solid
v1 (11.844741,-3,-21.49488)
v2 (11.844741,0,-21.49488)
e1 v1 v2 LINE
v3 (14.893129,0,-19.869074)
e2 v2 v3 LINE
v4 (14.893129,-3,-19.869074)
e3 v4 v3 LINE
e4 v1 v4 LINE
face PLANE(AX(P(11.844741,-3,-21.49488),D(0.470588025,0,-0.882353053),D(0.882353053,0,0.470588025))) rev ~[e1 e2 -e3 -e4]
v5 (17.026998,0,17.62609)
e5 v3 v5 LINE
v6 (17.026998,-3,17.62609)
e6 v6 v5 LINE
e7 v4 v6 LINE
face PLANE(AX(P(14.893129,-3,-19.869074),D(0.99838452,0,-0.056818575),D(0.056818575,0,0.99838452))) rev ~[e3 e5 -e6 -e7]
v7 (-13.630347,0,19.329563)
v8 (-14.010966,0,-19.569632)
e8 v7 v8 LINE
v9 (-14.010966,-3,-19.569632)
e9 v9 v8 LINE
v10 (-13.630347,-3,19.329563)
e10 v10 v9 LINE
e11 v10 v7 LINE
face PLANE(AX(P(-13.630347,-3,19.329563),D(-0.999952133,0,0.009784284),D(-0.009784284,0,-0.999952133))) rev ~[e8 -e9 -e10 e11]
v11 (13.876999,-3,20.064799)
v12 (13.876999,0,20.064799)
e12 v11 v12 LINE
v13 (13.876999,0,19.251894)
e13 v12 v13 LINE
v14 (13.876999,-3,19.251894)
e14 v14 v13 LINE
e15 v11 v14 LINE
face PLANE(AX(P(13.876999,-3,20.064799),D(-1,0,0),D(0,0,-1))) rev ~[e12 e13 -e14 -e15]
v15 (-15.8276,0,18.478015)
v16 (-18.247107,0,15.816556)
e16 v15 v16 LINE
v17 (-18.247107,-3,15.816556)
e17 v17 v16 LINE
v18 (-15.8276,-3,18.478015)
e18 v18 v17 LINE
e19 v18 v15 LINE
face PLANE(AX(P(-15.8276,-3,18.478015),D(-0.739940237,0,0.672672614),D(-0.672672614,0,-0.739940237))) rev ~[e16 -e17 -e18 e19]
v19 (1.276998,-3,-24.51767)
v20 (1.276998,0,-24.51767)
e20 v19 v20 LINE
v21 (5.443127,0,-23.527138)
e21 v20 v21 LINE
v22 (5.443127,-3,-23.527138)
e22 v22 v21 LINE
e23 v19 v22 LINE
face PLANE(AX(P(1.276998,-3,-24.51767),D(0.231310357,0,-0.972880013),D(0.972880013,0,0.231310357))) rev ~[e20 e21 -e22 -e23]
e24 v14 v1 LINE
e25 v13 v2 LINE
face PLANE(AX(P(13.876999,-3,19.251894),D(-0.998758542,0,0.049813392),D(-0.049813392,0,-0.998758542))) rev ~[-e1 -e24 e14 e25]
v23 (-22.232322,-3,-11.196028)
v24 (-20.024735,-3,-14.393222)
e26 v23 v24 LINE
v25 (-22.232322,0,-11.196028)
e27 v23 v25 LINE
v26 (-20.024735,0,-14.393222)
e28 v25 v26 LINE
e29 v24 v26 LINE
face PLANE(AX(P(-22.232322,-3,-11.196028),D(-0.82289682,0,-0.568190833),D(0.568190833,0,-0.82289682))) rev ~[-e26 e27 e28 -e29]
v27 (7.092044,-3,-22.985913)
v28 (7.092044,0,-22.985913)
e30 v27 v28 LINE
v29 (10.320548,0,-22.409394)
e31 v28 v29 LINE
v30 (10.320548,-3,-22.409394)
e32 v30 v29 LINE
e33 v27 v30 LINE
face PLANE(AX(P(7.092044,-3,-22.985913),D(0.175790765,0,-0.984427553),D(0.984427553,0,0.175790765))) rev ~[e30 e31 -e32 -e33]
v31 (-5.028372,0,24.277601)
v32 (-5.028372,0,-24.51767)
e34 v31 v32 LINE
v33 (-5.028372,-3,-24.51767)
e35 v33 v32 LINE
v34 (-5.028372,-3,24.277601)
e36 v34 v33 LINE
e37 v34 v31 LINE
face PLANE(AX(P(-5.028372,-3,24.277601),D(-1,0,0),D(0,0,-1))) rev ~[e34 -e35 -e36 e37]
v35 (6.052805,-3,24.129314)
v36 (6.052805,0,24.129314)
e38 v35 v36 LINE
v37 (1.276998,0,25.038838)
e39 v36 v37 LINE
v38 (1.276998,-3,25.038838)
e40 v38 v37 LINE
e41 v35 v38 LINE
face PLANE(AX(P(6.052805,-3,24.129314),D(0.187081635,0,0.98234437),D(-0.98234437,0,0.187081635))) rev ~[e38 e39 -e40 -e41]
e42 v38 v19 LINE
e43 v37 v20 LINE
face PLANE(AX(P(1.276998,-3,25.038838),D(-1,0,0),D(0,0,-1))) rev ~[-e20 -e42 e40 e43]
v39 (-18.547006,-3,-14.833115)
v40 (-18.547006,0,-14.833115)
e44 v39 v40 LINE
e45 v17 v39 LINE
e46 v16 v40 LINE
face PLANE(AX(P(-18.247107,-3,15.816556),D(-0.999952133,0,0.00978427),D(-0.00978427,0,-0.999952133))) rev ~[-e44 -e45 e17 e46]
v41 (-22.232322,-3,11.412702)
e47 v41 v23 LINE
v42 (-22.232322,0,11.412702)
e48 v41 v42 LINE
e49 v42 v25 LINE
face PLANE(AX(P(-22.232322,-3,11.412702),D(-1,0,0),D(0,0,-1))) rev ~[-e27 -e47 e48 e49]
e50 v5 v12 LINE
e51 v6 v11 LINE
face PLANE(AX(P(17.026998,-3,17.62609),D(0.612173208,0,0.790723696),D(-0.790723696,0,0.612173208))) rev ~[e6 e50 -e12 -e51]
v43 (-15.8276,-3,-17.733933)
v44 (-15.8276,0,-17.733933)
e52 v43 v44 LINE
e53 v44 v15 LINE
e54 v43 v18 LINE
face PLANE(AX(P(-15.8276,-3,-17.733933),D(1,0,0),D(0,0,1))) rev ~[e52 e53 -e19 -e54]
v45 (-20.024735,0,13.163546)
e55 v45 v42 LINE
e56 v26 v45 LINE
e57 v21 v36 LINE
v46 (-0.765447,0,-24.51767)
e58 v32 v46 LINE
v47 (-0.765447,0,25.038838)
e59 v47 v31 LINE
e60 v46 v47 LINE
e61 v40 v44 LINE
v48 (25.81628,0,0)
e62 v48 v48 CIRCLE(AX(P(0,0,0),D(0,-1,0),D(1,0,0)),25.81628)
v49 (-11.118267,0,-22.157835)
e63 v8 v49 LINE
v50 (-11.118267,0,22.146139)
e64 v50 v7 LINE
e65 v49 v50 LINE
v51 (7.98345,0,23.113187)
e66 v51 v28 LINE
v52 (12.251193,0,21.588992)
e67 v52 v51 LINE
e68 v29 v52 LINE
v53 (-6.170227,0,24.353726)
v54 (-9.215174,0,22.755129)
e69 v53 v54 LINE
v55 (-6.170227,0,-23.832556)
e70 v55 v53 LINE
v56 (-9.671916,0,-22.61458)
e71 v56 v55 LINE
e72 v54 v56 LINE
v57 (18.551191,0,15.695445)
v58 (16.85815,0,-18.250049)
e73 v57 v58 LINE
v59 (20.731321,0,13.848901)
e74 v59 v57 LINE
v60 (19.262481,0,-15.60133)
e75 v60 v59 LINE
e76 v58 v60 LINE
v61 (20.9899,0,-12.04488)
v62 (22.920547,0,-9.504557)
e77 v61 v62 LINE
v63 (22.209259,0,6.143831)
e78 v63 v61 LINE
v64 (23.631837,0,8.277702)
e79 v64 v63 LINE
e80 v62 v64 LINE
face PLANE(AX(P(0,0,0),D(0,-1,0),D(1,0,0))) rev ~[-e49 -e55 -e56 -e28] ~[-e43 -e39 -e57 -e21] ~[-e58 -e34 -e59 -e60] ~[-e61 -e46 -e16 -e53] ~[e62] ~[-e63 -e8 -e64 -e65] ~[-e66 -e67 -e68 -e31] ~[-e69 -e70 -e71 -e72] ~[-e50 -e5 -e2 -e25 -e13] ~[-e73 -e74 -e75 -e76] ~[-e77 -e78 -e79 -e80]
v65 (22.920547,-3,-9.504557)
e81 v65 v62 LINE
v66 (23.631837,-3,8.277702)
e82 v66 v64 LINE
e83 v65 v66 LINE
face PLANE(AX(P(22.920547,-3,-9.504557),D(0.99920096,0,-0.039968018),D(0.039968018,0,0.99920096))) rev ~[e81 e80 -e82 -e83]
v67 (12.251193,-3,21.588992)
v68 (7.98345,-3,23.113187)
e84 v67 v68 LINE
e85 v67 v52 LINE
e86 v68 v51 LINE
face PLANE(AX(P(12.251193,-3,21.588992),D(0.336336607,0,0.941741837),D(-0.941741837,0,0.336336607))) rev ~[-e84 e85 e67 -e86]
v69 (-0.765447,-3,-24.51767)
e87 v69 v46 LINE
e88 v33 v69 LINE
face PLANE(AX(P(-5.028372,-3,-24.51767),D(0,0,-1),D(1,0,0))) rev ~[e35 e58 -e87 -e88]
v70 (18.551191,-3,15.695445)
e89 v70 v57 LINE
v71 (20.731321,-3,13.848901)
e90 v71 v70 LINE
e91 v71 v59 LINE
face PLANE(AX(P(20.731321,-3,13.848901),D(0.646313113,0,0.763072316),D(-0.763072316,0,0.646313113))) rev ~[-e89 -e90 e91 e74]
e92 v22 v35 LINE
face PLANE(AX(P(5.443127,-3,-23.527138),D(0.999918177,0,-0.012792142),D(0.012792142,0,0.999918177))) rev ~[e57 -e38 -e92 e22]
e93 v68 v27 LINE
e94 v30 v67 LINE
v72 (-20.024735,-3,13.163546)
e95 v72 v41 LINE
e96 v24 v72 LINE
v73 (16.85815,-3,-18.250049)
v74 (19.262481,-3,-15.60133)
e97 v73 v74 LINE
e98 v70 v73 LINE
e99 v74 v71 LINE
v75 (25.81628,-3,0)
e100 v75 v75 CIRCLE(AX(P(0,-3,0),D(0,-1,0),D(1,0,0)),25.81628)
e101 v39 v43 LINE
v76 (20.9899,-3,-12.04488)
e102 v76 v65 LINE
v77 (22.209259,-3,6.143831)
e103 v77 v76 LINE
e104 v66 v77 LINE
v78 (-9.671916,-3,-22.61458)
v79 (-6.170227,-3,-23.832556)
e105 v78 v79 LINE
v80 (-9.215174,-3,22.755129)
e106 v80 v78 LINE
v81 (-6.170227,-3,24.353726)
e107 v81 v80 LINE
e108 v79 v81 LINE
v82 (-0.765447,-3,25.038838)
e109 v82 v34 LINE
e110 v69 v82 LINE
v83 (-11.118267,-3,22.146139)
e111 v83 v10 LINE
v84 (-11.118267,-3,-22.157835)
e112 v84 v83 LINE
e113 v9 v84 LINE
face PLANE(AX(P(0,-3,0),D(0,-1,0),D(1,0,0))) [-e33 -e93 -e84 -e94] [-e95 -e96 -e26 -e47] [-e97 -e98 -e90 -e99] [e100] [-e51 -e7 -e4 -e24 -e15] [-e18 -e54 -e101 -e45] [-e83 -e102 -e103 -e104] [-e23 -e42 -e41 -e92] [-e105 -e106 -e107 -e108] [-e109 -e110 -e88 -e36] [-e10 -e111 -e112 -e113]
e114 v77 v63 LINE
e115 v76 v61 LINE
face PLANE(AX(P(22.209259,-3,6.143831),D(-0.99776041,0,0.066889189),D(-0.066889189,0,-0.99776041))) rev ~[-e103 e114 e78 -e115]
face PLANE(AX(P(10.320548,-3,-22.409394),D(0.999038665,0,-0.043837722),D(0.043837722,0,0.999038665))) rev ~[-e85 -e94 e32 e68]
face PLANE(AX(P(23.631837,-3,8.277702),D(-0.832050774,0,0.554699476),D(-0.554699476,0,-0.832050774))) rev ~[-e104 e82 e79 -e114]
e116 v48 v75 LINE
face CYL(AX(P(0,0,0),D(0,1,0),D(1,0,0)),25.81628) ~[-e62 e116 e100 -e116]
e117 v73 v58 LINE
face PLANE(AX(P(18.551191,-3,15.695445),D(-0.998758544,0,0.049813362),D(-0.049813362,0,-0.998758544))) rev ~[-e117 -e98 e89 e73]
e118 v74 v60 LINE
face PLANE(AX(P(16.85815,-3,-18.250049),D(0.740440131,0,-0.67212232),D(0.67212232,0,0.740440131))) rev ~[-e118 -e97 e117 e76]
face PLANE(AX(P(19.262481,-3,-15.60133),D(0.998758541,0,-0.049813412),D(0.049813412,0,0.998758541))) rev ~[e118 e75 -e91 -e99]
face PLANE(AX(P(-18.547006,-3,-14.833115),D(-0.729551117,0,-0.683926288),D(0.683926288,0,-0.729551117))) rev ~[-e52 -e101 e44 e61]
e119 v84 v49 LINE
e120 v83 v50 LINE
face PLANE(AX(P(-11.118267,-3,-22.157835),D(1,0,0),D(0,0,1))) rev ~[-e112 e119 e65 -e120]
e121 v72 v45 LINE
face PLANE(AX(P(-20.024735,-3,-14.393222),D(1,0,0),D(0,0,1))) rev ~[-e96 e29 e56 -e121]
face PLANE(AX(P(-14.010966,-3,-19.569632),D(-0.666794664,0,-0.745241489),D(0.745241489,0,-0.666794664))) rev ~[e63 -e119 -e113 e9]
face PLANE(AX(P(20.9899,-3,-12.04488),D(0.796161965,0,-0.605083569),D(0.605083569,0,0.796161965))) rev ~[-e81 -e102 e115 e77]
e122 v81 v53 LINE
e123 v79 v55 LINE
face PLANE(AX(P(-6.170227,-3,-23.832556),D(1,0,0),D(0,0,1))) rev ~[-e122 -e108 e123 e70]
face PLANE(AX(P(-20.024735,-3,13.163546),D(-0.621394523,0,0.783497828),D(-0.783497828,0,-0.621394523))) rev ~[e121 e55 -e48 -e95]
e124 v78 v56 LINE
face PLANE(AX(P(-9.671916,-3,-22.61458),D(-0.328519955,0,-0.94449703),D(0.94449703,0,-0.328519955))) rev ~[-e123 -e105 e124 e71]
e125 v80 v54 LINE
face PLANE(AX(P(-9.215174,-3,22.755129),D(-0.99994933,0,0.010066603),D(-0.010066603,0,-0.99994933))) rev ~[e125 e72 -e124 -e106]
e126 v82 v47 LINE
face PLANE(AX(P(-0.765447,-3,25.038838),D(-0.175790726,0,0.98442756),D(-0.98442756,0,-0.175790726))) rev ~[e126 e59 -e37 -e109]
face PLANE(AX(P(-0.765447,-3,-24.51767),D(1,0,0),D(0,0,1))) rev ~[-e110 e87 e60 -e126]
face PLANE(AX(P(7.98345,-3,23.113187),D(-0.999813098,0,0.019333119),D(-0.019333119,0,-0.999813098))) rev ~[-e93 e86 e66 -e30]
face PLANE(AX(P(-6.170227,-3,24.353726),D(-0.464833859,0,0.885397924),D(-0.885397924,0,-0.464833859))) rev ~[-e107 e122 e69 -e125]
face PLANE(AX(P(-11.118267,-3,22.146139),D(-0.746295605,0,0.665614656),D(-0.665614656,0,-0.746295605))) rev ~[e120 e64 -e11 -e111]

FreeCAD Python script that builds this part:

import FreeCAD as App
import Part
import Sketcher
from FreeCAD import Vector
Q = App.Units.Quantity

doc = App.newDocument("Part")
params = doc.addObject("Spreadsheet::Sheet", "Params")
for row, (alias, value) in enumerate([
    ("pad1_length", "3 mm"),
    ("pocket1_length", "25 mm"),
    ("pocket2_length", "25 mm"),
], start=1):
    params.set(f"A{row}", alias)
    params.set(f"B{row}", "=" + value)
    params.setAlias(f"B{row}", alias)

body = doc.addObject("PartDesign::Body", "Body")

# Sketch on XZ plane
sketch1 = body.newObject("Sketcher::SketchObject", "Sketch")
sketch1.AttachmentSupport = (doc.getObject("XZ_Plane"), [""])
sketch1.MapMode = "FlatFace"
sketch1.addGeometry(Part.Circle(Vector(0, 0, 0), Vector(0, 0, 1), 25.81628), False)
sketch1.addConstraint([
    Sketcher.Constraint("Coincident", 0, 3, -1, 1),
    Sketcher.Constraint("Diameter", 0, 51.63256),
])
pad1 = body.newObject("PartDesign::Pad", "Pad")
pad1.Profile = sketch1
pad1.setExpression("Length", "Params.pad1_length")

# Sketch on XZ plane
sketch2 = body.newObject("Sketcher::SketchObject", "Sketch001")
sketch2.AttachmentSupport = (doc.getObject("XZ_Plane"), [""])
sketch2.MapMode = "FlatFace"
sketch2.AttachmentOffset = App.Placement(Vector(0, 0, 3), App.Rotation())
sketch2.addGeometry([
    Part.LineSegment(Vector(-22.232322, 11.412702, 0), Vector(-22.232322, -11.196028, 0)),  # 0
    Part.LineSegment(Vector(-22.232322, -11.196028, 0), Vector(-20.024735, -14.393222, 0)),  # 1
    Part.LineSegment(Vector(-20.024735, -14.393222, 0), Vector(-20.024735, 13.163546, 0)),  # 2
    Part.LineSegment(Vector(-20.024735, 13.163546, 0), Vector(-22.232322, 11.412702, 0)),  # 3
    Part.LineSegment(Vector(-11.118267, 22.146139, 0), Vector(-13.630347, 19.329563, 0)),  # 4
    Part.LineSegment(Vector(-13.630347, 19.329563, 0), Vector(-14.010966, -19.569632, 0)),  # 5
    Part.LineSegment(Vector(-14.010966, -19.569632, 0), Vector(-11.118267, -22.157835, 0)),  # 6
    Part.LineSegment(Vector(-11.118267, -22.157835, 0), Vector(-11.118267, 22.146139, 0)),  # 7
    Part.LineSegment(Vector(-6.170227, 24.353726, 0), Vector(-9.215174, 22.755129, 0)),  # 8
    Part.LineSegment(Vector(-9.215174, 22.755129, 0), Vector(-9.671916, -22.61458, 0)),  # 9
    Part.LineSegment(Vector(-9.671916, -22.61458, 0), Vector(-6.170227, -23.832556, 0)),  # 10
    Part.LineSegment(Vector(-6.170227, -23.832556, 0), Vector(-6.170227, 24.353726, 0)),  # 11
    Part.LineSegment(Vector(-0.765447, -24.51767, 0), Vector(-0.765447, 25.038838, 0)),  # 12
    Part.LineSegment(Vector(-0.765447, 25.038838, 0), Vector(-5.028372, 24.277601, 0)),  # 13
    Part.LineSegment(Vector(-5.028372, 24.277601, 0), Vector(-5.028372, -24.51767, 0)),  # 14
    Part.LineSegment(Vector(-5.028372, -24.51767, 0), Vector(-0.765447, -24.51767, 0)),  # 15
    Part.LineSegment(Vector(5.443127, -23.527138, 0), Vector(6.052805, 24.129314, 0)),  # 16
    Part.LineSegment(Vector(6.052805, 24.129314, 0), Vector(1.276998, 25.038838, 0)),  # 17
    Part.LineSegment(Vector(1.276998, 25.038838, 0), Vector(1.276998, -24.51767, 0)),  # 18
    Part.LineSegment(Vector(1.276998, -24.51767, 0), Vector(5.443127, -23.527138, 0)),  # 19
    Part.LineSegment(Vector(12.251193, 21.588992, 0), Vector(7.98345, 23.113187, 0)),  # 20
    Part.LineSegment(Vector(7.98345, 23.113187, 0), Vector(7.092044, -22.985913, 0)),  # 21
    Part.LineSegment(Vector(7.092044, -22.985913, 0), Vector(10.320548, -22.409394, 0)),  # 22
    Part.LineSegment(Vector(10.320548, -22.409394, 0), Vector(12.251193, 21.588992, 0)),  # 23
    Part.LineSegment(Vector(17.026998, 17.62609, 0), Vector(13.876999, 20.064799, 0)),  # 24
    Part.LineSegment(Vector(13.876999, 20.064799, 0), Vector(13.876999, 19.251894, 0)),  # 25
    Part.LineSegment(Vector(13.876999, 19.251894, 0), Vector(11.844741, -21.49488, 0)),  # 26
    Part.LineSegment(Vector(11.844741, -21.49488, 0), Vector(14.893129, -19.869074, 0)),  # 27
    Part.LineSegment(Vector(14.893129, -19.869074, 0), Vector(17.026998, 17.62609, 0)),  # 28
    Part.LineSegment(Vector(20.731321, 13.848901, 0), Vector(18.551191, 15.695445, 0)),  # 29
    Part.LineSegment(Vector(18.551191, 15.695445, 0), Vector(16.85815, -18.250049, 0)),  # 30
    Part.LineSegment(Vector(16.85815, -18.250049, 0), Vector(19.262481, -15.60133, 0)),  # 31
    Part.LineSegment(Vector(19.262481, -15.60133, 0), Vector(20.731321, 13.848901, 0)),  # 32
    Part.LineSegment(Vector(23.631837, 8.277702, 0), Vector(22.209259, 6.143831, 0)),  # 33
    Part.LineSegment(Vector(22.209259, 6.143831, 0), Vector(20.9899, -12.04488, 0)),  # 34
    Part.LineSegment(Vector(20.9899, -12.04488, 0), Vector(22.920547, -9.504557, 0)),  # 35
    Part.LineSegment(Vector(22.920547, -9.504557, 0), Vector(23.631837, 8.277702, 0)),  # 36
], False)
sketch2.addConstraint([
    Sketcher.Constraint("Coincident", 0, 2, 1, 1),
    Sketcher.Constraint("Coincident", 1, 2, 2, 1),
    Sketcher.Constraint("Coincident", 2, 2, 3, 1),
    Sketcher.Constraint("Coincident", 3, 2, 0, 1),
    Sketcher.Constraint("Coincident", 4, 2, 5, 1),
    Sketcher.Constraint("Coincident", 5, 2, 6, 1),
    Sketcher.Constraint("Coincident", 6, 2, 7, 1),
    Sketcher.Constraint("Coincident", 7, 2, 4, 1),
    Sketcher.Constraint("Coincident", 8, 2, 9, 1),
    Sketcher.Constraint("Coincident", 9, 2, 10, 1),
    Sketcher.Constraint("Coincident", 10, 2, 11, 1),
    Sketcher.Constraint("Coincident", 11, 2, 8, 1),
    Sketcher.Constraint("Coincident", 12, 2, 13, 1),
    Sketcher.Constraint("Coincident", 13, 2, 14, 1),
    Sketcher.Constraint("Coincident", 14, 2, 15, 1),
    Sketcher.Constraint("Coincident", 15, 2, 12, 1),
    Sketcher.Constraint("Coincident", 16, 2, 17, 1),
    Sketcher.Constraint("Coincident", 17, 2, 18, 1),
    Sketcher.Constraint("Coincident", 18, 2, 19, 1),
    Sketcher.Constraint("Coincident", 19, 2, 16, 1),
    Sketcher.Constraint("Coincident", 20, 2, 21, 1),
    Sketcher.Constraint("Coincident", 21, 2, 22, 1),
    Sketcher.Constraint("Coincident", 22, 2, 23, 1),
    Sketcher.Constraint("Coincident", 23, 2, 20, 1),
    Sketcher.Constraint("Coincident", 24, 2, 25, 1),
    Sketcher.Constraint("Coincident", 25, 2, 26, 1),
    Sketcher.Constraint("Coincident", 26, 2, 27, 1),
    Sketcher.Constraint("Coincident", 27, 2, 28, 1),
    Sketcher.Constraint("Coincident", 28, 2, 24, 1),
    Sketcher.Constraint("Coincident", 29, 2, 30, 1),
    Sketcher.Constraint("Coincident", 30, 2, 31, 1),
    Sketcher.Constraint("Coincident", 31, 2, 32, 1),
    Sketcher.Constraint("Coincident", 32, 2, 29, 1),
    Sketcher.Constraint("Coincident", 33, 2, 34, 1),
    Sketcher.Constraint("Coincident", 34, 2, 35, 1),
    Sketcher.Constraint("Coincident", 35, 2, 36, 1),
    Sketcher.Constraint("Coincident", 36, 2, 33, 1),
    Sketcher.Constraint("Vertical", 0),
    Sketcher.Constraint("Vertical", 2),
    Sketcher.Constraint("Vertical", 7),
    Sketcher.Constraint("Vertical", 11),
    Sketcher.Constraint("Vertical", 12),
    Sketcher.Constraint("Vertical", 14),
    Sketcher.Constraint("Horizontal", 15),
    Sketcher.Constraint("Vertical", 18),
    Sketcher.Constraint("Vertical", 25),
    Sketcher.Constraint("Parallel", 13, 22),
    Sketcher.Constraint("Parallel", 26, 30),
    Sketcher.Constraint("Parallel", 30, 32),
    Sketcher.Constraint("Horizontal", 12, 2, 17, 2),
    Sketcher.Constraint("Horizontal", 15, 2, 18, 2),
    Sketcher.Constraint("Angle", 33, Q("-123.690018 deg")),
    Sketcher.Constraint("DistanceX", 17, 2, 24, 2, 12.600001),
    Sketcher.Constraint("DistanceX", 25, 2, 28, 2, 3.149999),
    Sketcher.Constraint("DistanceY", 26, 2, 34, 2, 9.45),
    Sketcher.Constraint("DistanceX", -1, 1, 17, 2, 1.276998),
    Sketcher.Constraint("DistanceY", 0, 2, 0, 1, 22.60873),
    Sketcher.Constraint("DistanceY", 14, 2, 14, 1, 48.795271),
    Sketcher.Constraint("DistanceY", -1, 1, 13, 2, 24.277601),
    Sketcher.Constraint("DistanceY", -1, 1, 24, 2, 20.064799),
    Sketcher.Constraint("DistanceY", -1, 1, 32, 2, 13.848901),
    Sketcher.Constraint("DistanceX", -1, 1, 34, 2, 20.9899),
    Sketcher.Constraint("DistanceX", 5, 2, 6, 2, 2.892699),
    Sketcher.Constraint("DistanceY", 7, 2, 12, 2, 2.892699),
    Sketcher.Constraint("DistanceX", 4, 2, 12, 2, 12.8649),
    Sketcher.Constraint("DistanceX", 8, 2, 13, 2, 4.186802),
    Sketcher.Constraint("DistanceX", 14, 2, 19, 2, 10.471499),
    Sketcher.Constraint("DistanceY", 25, 2, 23, 2, 2.337098),
    Sketcher.Constraint("DistanceY", 28, 2, 23, 2, 3.962902),
    Sketcher.Constraint("DistanceX", 22, 2, 30, 2, 6.537602),
    Sketcher.Constraint("DistanceY", 36, 2, 32, 2, 5.571199),
    Sketcher.Constraint("Distance", 1, 3.885291),
    Sketcher.Constraint("Distance", 6, 3.881559),
    Sketcher.Constraint("Distance", 8, 3.439072),
    Sketcher.Constraint("Distance", 13, 4.330359),
    Sketcher.Constraint("Distance", 16, 47.660352),
    Sketcher.Constraint("Distance", 24, 3.983691),
    Sketcher.Constraint("Distance", 27, 3.454839),
    Sketcher.Constraint("Distance", 30, 33.987688),
    Sketcher.Constraint("Distance", 35, 3.190711),
    Sketcher.Constraint("Distance", 36, 17.796479),
    Sketcher.Constraint("DistanceX", 15, 1, 15, 2, 4.262925),
    Sketcher.Constraint("DistanceY", 2, 1, 2, 2, 27.556768),
    Sketcher.Constraint("DistanceY", 7, 1, 7, 2, 44.303974),
    Sketcher.Constraint("DistanceY", 11, 1, 11, 2, 48.186282),
    Sketcher.Constraint("DistanceX", 0, 2, -1, 1, 22.232322),
    Sketcher.Constraint("DistanceY", -1, 1, 8, 2, 22.755129),
    Sketcher.Constraint("DistanceY", 9, 2, -1, 1, 22.61458),
    Sketcher.Constraint("DistanceY", 19, 2, -1, 1, 23.527138),
    Sketcher.Constraint("DistanceX", -1, 1, 20, 2, 7.98345),
    Sketcher.Constraint("DistanceX", -1, 1, 26, 2, 11.844741),
    Sketcher.Constraint("DistanceY", 26, 2, -1, 1, 21.49488),
    Sketcher.Constraint("DistanceX", -1, 1, 27, 2, 14.893129),
    Sketcher.Constraint("DistanceX", -1, 1, 29, 2, 18.551191),
    Sketcher.Constraint("DistanceY", 30, 2, -1, 1, 18.250049),
    Sketcher.Constraint("DistanceX", -1, 1, 31, 2, 19.262481),
    Sketcher.Constraint("DistanceY", 31, 2, -1, 1, 15.60133),
    Sketcher.Constraint("DistanceX", -1, 1, 33, 2, 22.209259),
    Sketcher.Constraint("DistanceY", -1, 1, 33, 2, 6.143831),
    Sketcher.Constraint("DistanceY", 3, 2, 4, 2, 7.916861),
    Sketcher.Constraint("DistanceX", 1, 2, 5, 2, 6.013769),
    Sketcher.Constraint("DistanceY", 5, 2, 1, 2, 5.17641),
    Sketcher.Constraint("DistanceX", 5, 2, 4, 2, 0.380619),
    Sketcher.Constraint("DistanceX", 6, 2, 9, 2, 1.446351),
    Sketcher.Constraint("DistanceX", 9, 2, 10, 2, 3.501689),
    Sketcher.Constraint("DistanceY", 4, 2, 13, 2, 4.948038),
    Sketcher.Constraint("DistanceX", 8, 2, 16, 2, 15.267979),
    Sketcher.Constraint("DistanceY", 20, 2, 17, 2, 1.925651),
    Sketcher.Constraint("DistanceX", 15, 2, 21, 2, 7.857491),
    Sketcher.Constraint("DistanceX", 16, 2, 23, 2, 6.198388),
    Sketcher.Constraint("DistanceY", 22, 2, 27, 2, 2.54032),
])
pocket1 = body.newObject("PartDesign::Pocket", "Pocket")
pocket1.Profile = sketch2
pocket1.setExpression("Length", "Params.pocket1_length")

# Sketch on XZ plane
sketch3 = body.newObject("Sketcher::SketchObject", "Sketch002")
sketch3.AttachmentSupport = (doc.getObject("XZ_Plane"), [""])
sketch3.MapMode = "FlatFace"
sketch3.AttachmentOffset = App.Placement(Vector(0, 0, 3), App.Rotation())
sketch3.addGeometry([
    Part.LineSegment(Vector(-15.8276, 18.478015, 0), Vector(-18.247107, 15.816556, 0)),
    Part.LineSegment(Vector(-18.247107, 15.816556, 0), Vector(-18.547006, -14.833115, 0)),
    Part.LineSegment(Vector(-18.547006, -14.833115, 0), Vector(-15.8276, -17.733933, 0)),
    Part.LineSegment(Vector(-15.8276, -17.733933, 0), Vector(-15.8276, 18.478015, 0)),
], False)
sketch3.addConstraint([
    Sketcher.Constraint("Coincident", 0, 2, 1, 1),
    Sketcher.Constraint("Coincident", 1, 2, 2, 1),
    Sketcher.Constraint("Coincident", 2, 2, 3, 1),
    Sketcher.Constraint("Coincident", 3, 2, 0, 1),
    Sketcher.Constraint("Vertical", 3),
    Sketcher.Constraint("DistanceX", 2, 2, -1, 1, 15.8276),
    Sketcher.Constraint("DistanceX", 1, 2, 0, 2, 0.299899),
    Sketcher.Constraint("Distance", 1, 30.651138),
    Sketcher.Constraint("Distance", 2, 3.976168),
    Sketcher.Constraint("DistanceY", 3, 1, 3, 2, 36.211948),
    Sketcher.Constraint("DistanceY", 2, 2, 1, 2, 2.900818),
    Sketcher.Constraint("DistanceY", -1, 1, 0, 2, 15.816556),
])
pocket2 = body.newObject("PartDesign::Pocket", "Pocket001")
pocket2.Profile = sketch3
pocket2.setExpression("Length", "Params.pocket2_length")

doc.recompute()
